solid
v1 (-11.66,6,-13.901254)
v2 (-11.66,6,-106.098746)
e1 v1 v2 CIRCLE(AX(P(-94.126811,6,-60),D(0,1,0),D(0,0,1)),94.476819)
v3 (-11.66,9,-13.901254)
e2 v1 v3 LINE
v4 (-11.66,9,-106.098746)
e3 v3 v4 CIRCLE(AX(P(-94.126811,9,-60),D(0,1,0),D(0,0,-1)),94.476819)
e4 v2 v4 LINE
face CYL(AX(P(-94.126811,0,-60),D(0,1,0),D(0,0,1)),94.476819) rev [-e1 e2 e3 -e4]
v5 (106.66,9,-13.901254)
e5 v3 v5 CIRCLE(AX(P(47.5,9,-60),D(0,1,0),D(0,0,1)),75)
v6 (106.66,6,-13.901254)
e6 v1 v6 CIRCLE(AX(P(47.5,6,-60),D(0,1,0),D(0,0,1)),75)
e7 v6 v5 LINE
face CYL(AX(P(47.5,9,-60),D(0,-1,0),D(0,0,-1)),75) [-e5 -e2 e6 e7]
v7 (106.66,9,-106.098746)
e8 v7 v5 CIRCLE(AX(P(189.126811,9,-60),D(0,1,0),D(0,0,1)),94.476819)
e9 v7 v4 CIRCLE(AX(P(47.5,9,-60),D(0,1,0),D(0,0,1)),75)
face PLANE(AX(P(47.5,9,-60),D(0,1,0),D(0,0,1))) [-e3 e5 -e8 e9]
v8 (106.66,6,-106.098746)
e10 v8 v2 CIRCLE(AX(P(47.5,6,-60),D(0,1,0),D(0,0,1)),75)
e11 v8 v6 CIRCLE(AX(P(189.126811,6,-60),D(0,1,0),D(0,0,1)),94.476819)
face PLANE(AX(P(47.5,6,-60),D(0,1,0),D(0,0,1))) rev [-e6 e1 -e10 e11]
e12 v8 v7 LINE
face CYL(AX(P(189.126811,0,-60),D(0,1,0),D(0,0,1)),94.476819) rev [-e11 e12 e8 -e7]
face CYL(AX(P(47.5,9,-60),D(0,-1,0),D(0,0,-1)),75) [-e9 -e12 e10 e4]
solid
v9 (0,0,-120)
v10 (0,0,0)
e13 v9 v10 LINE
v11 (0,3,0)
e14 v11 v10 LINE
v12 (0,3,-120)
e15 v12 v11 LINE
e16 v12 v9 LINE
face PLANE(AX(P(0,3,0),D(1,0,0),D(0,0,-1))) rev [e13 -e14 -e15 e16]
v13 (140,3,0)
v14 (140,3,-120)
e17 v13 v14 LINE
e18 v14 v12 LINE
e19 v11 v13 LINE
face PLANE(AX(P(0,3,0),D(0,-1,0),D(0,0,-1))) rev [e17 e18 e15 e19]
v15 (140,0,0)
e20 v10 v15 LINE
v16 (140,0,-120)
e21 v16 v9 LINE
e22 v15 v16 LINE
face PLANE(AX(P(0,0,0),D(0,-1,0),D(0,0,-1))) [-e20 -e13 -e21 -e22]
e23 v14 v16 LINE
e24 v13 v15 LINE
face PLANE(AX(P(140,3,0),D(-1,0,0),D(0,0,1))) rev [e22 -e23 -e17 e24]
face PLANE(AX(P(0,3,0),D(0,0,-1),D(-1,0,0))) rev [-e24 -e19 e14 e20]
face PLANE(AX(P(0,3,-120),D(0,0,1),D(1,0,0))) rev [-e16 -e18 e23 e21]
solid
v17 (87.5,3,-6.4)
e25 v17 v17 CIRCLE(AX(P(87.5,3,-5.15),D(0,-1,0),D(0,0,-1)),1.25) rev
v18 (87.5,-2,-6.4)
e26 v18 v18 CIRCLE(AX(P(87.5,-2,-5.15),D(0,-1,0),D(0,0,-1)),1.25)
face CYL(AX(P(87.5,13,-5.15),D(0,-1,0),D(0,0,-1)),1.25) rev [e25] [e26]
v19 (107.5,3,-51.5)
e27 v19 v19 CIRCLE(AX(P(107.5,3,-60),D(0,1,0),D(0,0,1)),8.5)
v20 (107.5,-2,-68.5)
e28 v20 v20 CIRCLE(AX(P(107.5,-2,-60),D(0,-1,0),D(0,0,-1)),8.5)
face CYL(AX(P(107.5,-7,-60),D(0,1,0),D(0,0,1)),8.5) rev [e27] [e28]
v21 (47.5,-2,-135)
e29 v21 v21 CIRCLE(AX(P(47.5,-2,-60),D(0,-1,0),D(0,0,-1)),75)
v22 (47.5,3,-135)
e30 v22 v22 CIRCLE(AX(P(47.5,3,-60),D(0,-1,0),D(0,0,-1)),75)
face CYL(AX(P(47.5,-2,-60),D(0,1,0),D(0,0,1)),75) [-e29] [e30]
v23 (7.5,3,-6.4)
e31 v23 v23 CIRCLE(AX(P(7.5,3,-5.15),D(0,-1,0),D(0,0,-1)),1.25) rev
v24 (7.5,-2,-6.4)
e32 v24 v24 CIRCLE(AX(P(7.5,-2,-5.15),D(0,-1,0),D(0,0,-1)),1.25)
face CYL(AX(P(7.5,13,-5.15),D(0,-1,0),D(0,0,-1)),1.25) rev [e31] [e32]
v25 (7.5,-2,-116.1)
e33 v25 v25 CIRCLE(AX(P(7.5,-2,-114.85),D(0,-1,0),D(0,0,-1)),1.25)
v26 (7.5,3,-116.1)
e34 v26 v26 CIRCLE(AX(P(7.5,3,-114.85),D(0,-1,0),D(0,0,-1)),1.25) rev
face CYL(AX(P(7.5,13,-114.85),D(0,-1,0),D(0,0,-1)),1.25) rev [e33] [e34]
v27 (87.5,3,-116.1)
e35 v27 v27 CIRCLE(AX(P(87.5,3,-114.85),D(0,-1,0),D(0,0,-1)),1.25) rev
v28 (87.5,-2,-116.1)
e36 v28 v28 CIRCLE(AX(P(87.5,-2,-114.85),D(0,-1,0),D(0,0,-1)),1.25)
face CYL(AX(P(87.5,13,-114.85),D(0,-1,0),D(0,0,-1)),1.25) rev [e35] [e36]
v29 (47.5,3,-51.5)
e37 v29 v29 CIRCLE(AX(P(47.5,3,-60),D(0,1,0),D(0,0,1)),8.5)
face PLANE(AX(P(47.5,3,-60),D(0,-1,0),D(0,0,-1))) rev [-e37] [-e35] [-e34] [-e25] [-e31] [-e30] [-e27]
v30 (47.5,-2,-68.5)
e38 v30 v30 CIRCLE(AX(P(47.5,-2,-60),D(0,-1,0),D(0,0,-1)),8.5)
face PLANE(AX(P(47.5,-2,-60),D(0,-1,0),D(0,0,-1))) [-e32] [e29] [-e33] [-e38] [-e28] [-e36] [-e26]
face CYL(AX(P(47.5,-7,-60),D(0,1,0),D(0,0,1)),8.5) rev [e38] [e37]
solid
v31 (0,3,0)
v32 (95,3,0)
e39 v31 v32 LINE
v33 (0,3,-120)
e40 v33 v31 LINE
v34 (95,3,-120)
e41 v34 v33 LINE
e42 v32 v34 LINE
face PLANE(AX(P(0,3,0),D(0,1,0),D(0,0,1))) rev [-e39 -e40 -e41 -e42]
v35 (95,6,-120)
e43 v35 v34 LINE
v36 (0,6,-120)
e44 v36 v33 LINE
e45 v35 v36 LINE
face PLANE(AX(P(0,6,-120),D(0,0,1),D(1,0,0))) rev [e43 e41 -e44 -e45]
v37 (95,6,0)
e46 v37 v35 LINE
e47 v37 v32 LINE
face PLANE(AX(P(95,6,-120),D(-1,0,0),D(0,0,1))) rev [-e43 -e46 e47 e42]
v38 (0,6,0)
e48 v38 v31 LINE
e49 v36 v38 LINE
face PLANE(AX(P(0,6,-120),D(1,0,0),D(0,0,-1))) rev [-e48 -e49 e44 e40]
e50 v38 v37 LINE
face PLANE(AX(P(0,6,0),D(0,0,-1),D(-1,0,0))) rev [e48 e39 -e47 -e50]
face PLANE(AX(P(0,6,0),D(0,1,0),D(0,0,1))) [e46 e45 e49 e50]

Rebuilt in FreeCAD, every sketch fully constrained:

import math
import FreeCAD as App
import Part
import Sketcher

V = App.Vector
Q = App.Units.Quantity


def add_polygon(sketch, points):
    """Adds a closed chain of lines whose ends are joined by coincident constraints."""
    first, n = sketch.GeometryCount, len(points)
    for a, b in zip(points, points[1:] + points[:1]):
        sketch.addGeometry(Part.LineSegment(App.Vector(*a, 0), App.Vector(*b, 0)), False)
    for i in range(n):
        sketch.addConstraint(Sketcher.Constraint("Coincident", first + i, 2, first + (i + 1) % n, 1))

doc = App.newDocument("Part")
params = doc.addObject("Spreadsheet::Sheet", "Params")
for row, (alias, value) in enumerate([
    ("sketch1_width", "140 mm"),
    ("sketch1_height", "120 mm"),
    ("pad1_length", "3 mm"),
    ("sketch2_width", "95 mm"),
    ("sketch2_height", "120 mm"),
    ("pad2_length", "3 mm"),
    ("sketch3_diameter", "150 mm"),
    ("pad3_length", "3 mm"),
    ("sketch4_radius", "75 mm"),
    ("sketch5_radius", "75 mm"),
    ("pad4_length", "3 mm"),
    ("pad5_length", "3 mm"),
    ("fillet_radius", "0.001 mm"),
    ("sketch7_height", "5 mm"),
    ("pad6_length", "3 mm"),
    ("sketch8_diameter", "2.5 mm"),
    ("pocket2_length", "10 mm"),
    ("pocket3_length", "10 mm"),
    ("sketch10_diameter", "150 mm"),
    ("sketch10_diameter2", "2.5 mm"),
    ("pad7_length", "5 mm"),
    ("pocket4_length", "150 mm"),
    ("sketch12_diameter", "17 mm"),
    ("pocket5_length", "10 mm"),
    ("sketch13_diameter", "17 mm"),
    ("pocket6_length", "10 mm"),
], start=1):
    params.set(f"A{row}", alias)
    params.set(f"B{row}", "=" + value)
    params.setAlias(f"B{row}", alias)

body = doc.addObject("PartDesign::Body", "Body")

# Sketch on XZ plane
sketch1 = body.newObject("Sketcher::SketchObject", "Sketch")
sketch1.AttachmentSupport = (doc.getObject("XZ_Plane"), [""])
sketch1.MapMode = "FlatFace"
add_polygon(sketch1, [(0, -120), (0, 0), (140, 0), (140, -120)])  # lines 0-3
sketch1.addConstraint([
    Sketcher.Constraint("Vertical", 0),
    Sketcher.Constraint("Horizontal", 1),
    Sketcher.Constraint("Vertical", 2),
    Sketcher.Constraint("Horizontal", 3),
    Sketcher.Constraint("Coincident", 0, 2, -1, 1),
    Sketcher.Constraint("DistanceX", 1, 1, 1, 2, Q("140 mm")),
    Sketcher.Constraint("DistanceY", 0, 1, 0, 2, Q("120 mm")),
])
sketch1.setExpression("Constraints[9]", "Params.sketch1_width")
sketch1.setExpression("Constraints[10]", "Params.sketch1_height")
pad1 = body.newObject("PartDesign::Pad", "Pad")
pad1.Profile = sketch1
pad1.setExpression("Length", "Params.pad1_length")
pad1.Reversed = True
body2 = doc.addObject("PartDesign::Body", "Body001")

# Sketch on XZ plane
sketch2 = body2.newObject("Sketcher::SketchObject", "Sketch001")
sketch2.AttachmentSupport = (doc.getObject("XZ_Plane001"), [""])
sketch2.MapMode = "FlatFace"
sketch2.AttachmentOffset = App.Placement(V(0, 0, -3), App.Rotation())
add_polygon(sketch2, [(0, -120), (0, 0), (95, 0), (95, -120)])  # lines 0-3
sketch2.addConstraint([
    Sketcher.Constraint("Vertical", 0),
    Sketcher.Constraint("Horizontal", 1),
    Sketcher.Constraint("Vertical", 2),
    Sketcher.Constraint("Horizontal", 3),
    Sketcher.Constraint("Coincident", 0, 2, -1, 1),
    Sketcher.Constraint("DistanceX", 1, 1, 1, 2, Q("95 mm")),
    Sketcher.Constraint("DistanceY", 0, 1, 0, 2, Q("120 mm")),
])
sketch2.setExpression("Constraints[9]", "Params.sketch2_width")
sketch2.setExpression("Constraints[10]", "Params.sketch2_height")
pad2 = body2.newObject("PartDesign::Pad", "Pad001")
pad2.Profile = sketch2
pad2.setExpression("Length", "Params.pad2_length")
pad2.Reversed = True
body3 = doc.addObject("PartDesign::Body", "Body002")

# Sketch on XZ plane
sketch3 = body3.newObject("Sketcher::SketchObject", "Sketch002")
sketch3.AttachmentSupport = (doc.getObject("XZ_Plane002"), [""])
sketch3.MapMode = "FlatFace"
sketch3.AttachmentOffset = App.Placement(V(0, 0, -6), App.Rotation())
sketch3.addGeometry(Part.Circle(V(48, -60, 0), V(0, 0, 1), 75), False)
sketch3.addConstraint([
    Sketcher.Constraint("Diameter", 0, Q("150 mm")),
    Sketcher.Constraint("DistanceY", 0, 3, -1, 1, Q("60 mm")),
    Sketcher.Constraint("DistanceX", -1, 1, 0, 3, Q("47.5 mm")),
])
sketch3.setExpression("Constraints[0]", "Params.sketch3_diameter")
pad3 = body3.newObject("PartDesign::Pad", "Pad002")
pad3.Profile = sketch3
pad3.setExpression("Length", "Params.pad3_length")
pad3.Reversed = True

# Sketch on XZ plane
sketch4 = body3.newObject("Sketcher::SketchObject", "Sketch003")
sketch4.AttachmentSupport = (doc.getObject("XZ_Plane002"), [""])
sketch4.MapMode = "FlatFace"
sketch4.AttachmentOffset = App.Placement(V(0, 0, -9), App.Rotation())
sketch4.addGeometry([
    Part.ArcOfCircle(Part.Circle(V(-94, -60, 0), V(0, 0, 1), 94), math.radians(-29), math.radians(29)),
    Part.ArcOfCircle(Part.Circle(V(48, -60, 0), V(0, 0, 1), 75), math.radians(142), math.radians(218)),
    Part.ArcOfCircle(Part.Circle(V(189, -60, 0), V(0, 0, 1), 94), math.radians(151), math.radians(209)),
    Part.ArcOfCircle(Part.Circle(V(48, -60, 0), V(0, 0, 1), 75), math.radians(-38), math.radians(38)),
], False)
sketch4.addConstraint([
    Sketcher.Constraint("Coincident", 0, 1, 1, 2),
    Sketcher.Constraint("Coincident", 1, 1, 0, 2),
    Sketcher.Constraint("Coincident", 2, 1, 3, 2),
    Sketcher.Constraint("Coincident", 3, 1, 2, 2),
    Sketcher.Constraint("Coincident", 3, 3, 1, 3),
    Sketcher.Constraint("Equal", 0, 2),
    Sketcher.Constraint("Equal", 1, 3),
    Sketcher.Constraint("Horizontal", 0, 3, 1, 3),
    Sketcher.Constraint("Horizontal", 1, 3, 2, 3),
    Sketcher.Constraint("Horizontal", 1, 1, 2, 1),
    Sketcher.Constraint("Radius", 1, Q("75 mm")),
    Sketcher.Constraint("DistanceY", 0, 3, -1, 1, Q("60 mm")),
    Sketcher.Constraint("DistanceX", -1, 1, 1, 3, Q("47.5 mm")),
    Sketcher.Constraint("DistanceX", 0, 1, -1, 1, Q("11.66 mm")),
    Sketcher.Constraint("Radius", 0, Q("94.476819 mm")),
])
sketch4.setExpression("Constraints[10]", "Params.sketch4_radius")
pocket1 = body3.newObject("PartDesign::Pocket", "Pocket")
pocket1.Profile = sketch4
pocket1.Type = "ThroughAll"
pocket1.Reversed = True
body4 = doc.addObject("PartDesign::Body", "Body003")

# Sketch on XZ plane
sketch5 = body4.newObject("Sketcher::SketchObject", "Sketch004")
sketch5.AttachmentSupport = (doc.getObject("XZ_Plane003"), [""])
sketch5.MapMode = "FlatFace"
sketch5.AttachmentOffset = App.Placement(V(0, 0, -6), App.Rotation())
sketch5.addGeometry([
    Part.ArcOfCircle(Part.Circle(V(48, -60, 0), V(0, 0, 1), 75), math.radians(38), math.radians(142)),
    Part.ArcOfCircle(Part.Circle(V(-94, -60, 0), V(0, 0, 1), 94), math.radians(-29), math.radians(29)),
    Part.ArcOfCircle(Part.Circle(V(48, -60, 0), V(0, 0, 1), 75), math.radians(-142), math.radians(-38)),
    Part.ArcOfCircle(Part.Circle(V(189, -60, 0), V(0, 0, 1), 94), math.radians(151), math.radians(209)),
], False)
sketch5.addConstraint([
    Sketcher.Constraint("Coincident", 0, 2, 1, 2),
    Sketcher.Constraint("Coincident", 1, 1, 2, 1),
    Sketcher.Constraint("Coincident", 2, 2, 3, 2),
    Sketcher.Constraint("Coincident", 3, 1, 0, 1),
    Sketcher.Constraint("Coincident", 2, 3, 0, 3),
    Sketcher.Constraint("Equal", 0, 2),
    Sketcher.Constraint("Equal", 1, 3),
    Sketcher.Constraint("Horizontal", 0, 3, 1, 3),
    Sketcher.Constraint("Horizontal", 2, 3, 3, 3),
    Sketcher.Constraint("Horizontal", 1, 1, 2, 2),
    Sketcher.Constraint("Radius", 0, Q("75 mm")),
    Sketcher.Constraint("DistanceY", 0, 3, -1, 1, Q("60 mm")),
    Sketcher.Constraint("DistanceX", -1, 1, 0, 3, Q("47.5 mm")),
    Sketcher.Constraint("DistanceX", 0, 2, -1, 1, Q("11.66 mm")),
    Sketcher.Constraint("Radius", 1, Q("94.476819 mm")),
])
sketch5.setExpression("Constraints[10]", "Params.sketch5_radius")
pad4 = body4.newObject("PartDesign::Pad", "Pad003")
pad4.Profile = sketch5
pad4.setExpression("Length", "Params.pad4_length")

# Sketch on XZ plane
sketch6 = body4.newObject("Sketcher::SketchObject", "Sketch005")
sketch6.AttachmentSupport = (doc.getObject("XZ_Plane003"), [""])
sketch6.MapMode = "FlatFace"
sketch6.AttachmentOffset = App.Placement(V(0, 0, -6), App.Rotation())
sketch6.addGeometry([
    Part.LineSegment(V(-12, -106, 0), V(-12, -14, 0)),
    Part.ArcOfCircle(Part.Circle(V(-94, -60, 0), V(0, 0, 1), 94), math.radians(-29), math.radians(29)),
    Part.LineSegment(V(107, -14, 0), V(107, -106, 0)),
    Part.ArcOfCircle(Part.Circle(V(189, -60, 0), V(0, 0, 1), 94), math.radians(151), math.radians(209)),
], False)
sketch6.addConstraint([
    Sketcher.Constraint("Coincident", 0, 1, 1, 1),
    Sketcher.Constraint("Coincident", 1, 2, 0, 2),
    Sketcher.Constraint("Coincident", 2, 1, 3, 1),
    Sketcher.Constraint("Coincident", 3, 2, 2, 2),
    Sketcher.Constraint("Vertical", 0),
    Sketcher.Constraint("Vertical", 2),
    Sketcher.Constraint("Equal", 1, 3),
    Sketcher.Constraint("Horizontal", 1, 3, 3, 3),
    Sketcher.Constraint("Horizontal", 1, 2, 2, 1),
    Sketcher.Constraint("DistanceY", 1, 3, -1, 1, Q("60 mm")),
    Sketcher.Constraint("DistanceX", 0, 1, -1, 1, Q("11.66 mm")),
    Sketcher.Constraint("DistanceX", -1, 1, 2, 1, Q("106.66 mm")),
    Sketcher.Constraint("Radius", 1, Q("94.476819 mm")),
    Sketcher.Constraint("DistanceY", 0, 1, 0, 2, Q("92.197492 mm")),
])
pad5 = body4.newObject("PartDesign::Pad", "Pad004")
pad5.Profile = sketch6
pad5.setExpression("Length", "Params.pad5_length")
doc.recompute()

fillet = body4.newObject("PartDesign::Fillet", "Fillet")
fillet.Base = (pad5, ["Edge1"])
fillet.UseAllEdges = True
fillet.setExpression("Radius", "Params.fillet_radius")

# Sketch on XZ plane
sketch7 = body4.newObject("Sketcher::SketchObject", "Sketch006")
sketch7.AttachmentSupport = (doc.getObject("XZ_Plane003"), [""])
sketch7.MapMode = "FlatFace"
sketch7.AttachmentOffset = App.Placement(V(0, 0, -6), App.Rotation())
sketch7.addGeometry([
    Part.LineSegment(V(-12, -111, 0), V(-12, -106, 0)),  # 0
    Part.ArcOfCircle(Part.Circle(V(48, -57, 0), V(0, 0, 1), 77), math.radians(-140), math.radians(-40)),  # 1
    Part.LineSegment(V(107, -106, 0), V(107, -111, 0)),  # 2
    Part.ArcOfCircle(Part.Circle(V(48, -62, 0), V(0, 0, 1), 77), math.radians(-140), math.radians(-40)),  # 3
    Part.LineSegment(V(107, -9, 0), V(107, -14, 0)),  # 4
    Part.ArcOfCircle(Part.Circle(V(48, -63, 0), V(0, 0, 1), 77), math.radians(40), math.radians(140)),  # 5
    Part.LineSegment(V(-12, -14, 0), V(-12, -9, 0)),  # 6
    Part.ArcOfCircle(Part.Circle(V(48, -58, 0), V(0, 0, 1), 77), math.radians(40), math.radians(140)),  # 7
], False)
sketch7.addConstraint([
    Sketcher.Constraint("Coincident", 0, 2, 1, 1),
    Sketcher.Constraint("Coincident", 1, 2, 2, 1),
    Sketcher.Constraint("Coincident", 2, 2, 3, 2),
    Sketcher.Constraint("Coincident", 3, 1, 0, 1),
    Sketcher.Constraint("Coincident", 4, 2, 5, 1),
    Sketcher.Constraint("Coincident", 5, 2, 6, 1),
    Sketcher.Constraint("Coincident", 6, 2, 7, 2),
    Sketcher.Constraint("Coincident", 7, 1, 4, 1),
    Sketcher.Constraint("Vertical", 0),
    Sketcher.Constraint("Vertical", 2),
    Sketcher.Constraint("Vertical", 4),
    Sketcher.Constraint("Vertical", 6),
    Sketcher.Constraint("Equal", 1, 3),
    Sketcher.Constraint("Equal", 3, 5),
    Sketcher.Constraint("Equal", 5, 7),
    Sketcher.Constraint("Horizontal", 0, 2, 1, 2),
    Sketcher.Constraint("Horizontal", 2, 2, 3, 1),
    Sketcher.Constraint("Horizontal", 4, 2, 5, 2),
    Sketcher.Constraint("Horizontal", 6, 2, 7, 1),
    Sketcher.Constraint("Vertical", 3, 3, 5, 3),
    Sketcher.Constraint("Vertical", 2, 2, 4, 2),
    Sketcher.Constraint("Equal", 2, 4),
    Sketcher.Constraint("DistanceY", 0, 1, 0, 2, Q("5 mm")),
    Sketcher.Constraint("DistanceX", -1, 1, 1, 3, Q("47.5 mm")),
    Sketcher.Constraint("Radius", 1, Q("77.028009 mm")),
    Sketcher.Constraint("DistanceY", 1, 3, -1, 1, Q("56.76662 mm")),
    Sketcher.Constraint("DistanceY", 5, 3, -1, 1, Q("63.23338 mm")),
    Sketcher.Constraint("DistanceX", 0, 2, 1, 2, Q("118.318012 mm")),
])
sketch7.setExpression("Constraints[22]", "Params.sketch7_height")
pad6 = body4.newObject("PartDesign::Pad", "Pad005")
pad6.Profile = sketch7
pad6.setExpression("Length", "Params.pad6_length")

# Sketch on XZ plane
sketch8 = body4.newObject("Sketcher::SketchObject", "Sketch007")
sketch8.AttachmentSupport = (doc.getObject("XZ_Plane003"), [""])
sketch8.MapMode = "FlatFace"
sketch8.AttachmentOffset = App.Placement(V(0, 0, -3), App.Rotation())
sketch8.addGeometry([
    Part.Circle(V(7.5, -5.2, 0), V(0, 0, 1), 1.2),
    Part.Circle(V(87.5, -5.2, 0), V(0, 0, 1), 1.2),
    Part.Circle(V(87.5, -114.8, 0), V(0, 0, 1), 1.2),
    Part.Circle(V(7.5, -114.8, 0), V(0, 0, 1), 1.2),
], False)
sketch8.addConstraint([
    Sketcher.Constraint("Equal", 0, 1),
    Sketcher.Constraint("Equal", 1, 2),
    Sketcher.Constraint("Equal", 2, 3),
    Sketcher.Constraint("Horizontal", 0, 3, 1, 3),
    Sketcher.Constraint("Horizontal", 2, 3, 3, 3),
    Sketcher.Constraint("Vertical", 1, 3, 2, 3),
    Sketcher.Constraint("Vertical", 0, 3, 3, 3),
    Sketcher.Constraint("Diameter", 0, Q("2.5 mm")),
    Sketcher.Constraint("DistanceX", 0, 3, 1, 3, Q("80 mm")),
    Sketcher.Constraint("DistanceX", -1, 1, 0, 3, Q("7.5 mm")),
    Sketcher.Constraint("DistanceY", 2, 3, 1, 3, Q("109.7 mm")),
    Sketcher.Constraint("DistanceY", 0, 3, -1, 1, Q("5.15 mm")),
])
sketch8.setExpression("Constraints[7]", "Params.sketch8_diameter")
pocket2 = body4.newObject("PartDesign::Pocket", "Pocket001")
pocket2.Profile = sketch8
pocket2.setExpression("Length", "Params.pocket2_length")

# Sketch on XZ plane
sketch9 = body4.newObject("Sketcher::SketchObject", "Sketch008")
sketch9.AttachmentSupport = (doc.getObject("XZ_Plane003"), [""])
sketch9.MapMode = "FlatFace"
sketch9.AttachmentOffset = App.Placement(V(0, 0, -3), App.Rotation())
add_polygon(sketch9, [(120, 37), (-29, 37), (-29, -159), (120, -159)])  # lines 0-3
add_polygon(sketch9, [(-7, 25), (102, 25), (102, -144), (-7, -144)])  # lines 4-7
sketch9.addConstraint([
    Sketcher.Constraint("Horizontal", 0),
    Sketcher.Constraint("Vertical", 1),
    Sketcher.Constraint("Horizontal", 2),
    Sketcher.Constraint("Vertical", 3),
    Sketcher.Constraint("Horizontal", 4),
    Sketcher.Constraint("Vertical", 5),
    Sketcher.Constraint("Horizontal", 6),
    Sketcher.Constraint("Vertical", 7),
    Sketcher.Constraint("DistanceX", 4, 1, 4, 2, Q("108.318 mm")),
    Sketcher.Constraint("DistanceX", -1, 1, 4, 2, Q("101.659 mm")),
    Sketcher.Constraint("DistanceY", 5, 2, 5, 1, Q("168.545879 mm")),
    Sketcher.Constraint("DistanceY", 2, 2, 4, 2, Q("183.304201 mm")),
    Sketcher.Constraint("DistanceX", 0, 2, 0, 1, Q("149.549773 mm")),
    Sketcher.Constraint("DistanceY", 1, 2, 1, 1, Q("195.651983 mm")),
    Sketcher.Constraint("DistanceX", -1, 1, 2, 2, Q("120.372278 mm")),
    Sketcher.Constraint("DistanceY", -1, 1, 0, 2, Q("37.050138 mm")),
])
pocket3 = body4.newObject("PartDesign::Pocket", "Pocket002")
pocket3.Profile = sketch9
pocket3.setExpression("Length", "Params.pocket3_length")

# Sketch on XZ plane
sketch10 = body4.newObject("Sketcher::SketchObject", "Sketch009")
sketch10.AttachmentSupport = (doc.getObject("XZ_Plane003"), [""])
sketch10.MapMode = "FlatFace"
sketch10.AttachmentOffset = App.Placement(V(0, 0, -3), App.Rotation())
sketch10.addGeometry([
    Part.Circle(V(47.5, -60, 0), V(0, 0, 1), 75),  # 0
    Part.Circle(V(87.5, -114.8, 0), V(0, 0, 1), 1.2),  # 1
    Part.Circle(V(7.5, -114.8, 0), V(0, 0, 1), 1.2),  # 2
    Part.Circle(V(87.5, -5.2, 0), V(0, 0, 1), 1.2),  # 3
    Part.Circle(V(7.5, -5.2, 0), V(0, 0, 1), 1.2),  # 4
], False)
sketch10.addConstraint([
    Sketcher.Constraint("Equal", 1, 2),
    Sketcher.Constraint("Equal", 2, 3),
    Sketcher.Constraint("Equal", 3, 4),
    Sketcher.Constraint("Horizontal", 1, 3, 2, 3),
    Sketcher.Constraint("Horizontal", 3, 3, 4, 3),
    Sketcher.Constraint("Vertical", 1, 3, 3, 3),
    Sketcher.Constraint("Vertical", 2, 3, 4, 3),
    Sketcher.Constraint("Diameter", 0, Q("150 mm")),
    Sketcher.Constraint("Diameter", 1, Q("2.5 mm")),
    Sketcher.Constraint("DistanceY", 0, 3, -1, 1, Q("60 mm")),
    Sketcher.Constraint("DistanceX", 0, 3, 1, 3, Q("40 mm")),
    Sketcher.Constraint("DistanceX", 2, 3, 0, 3, Q("40 mm")),
    Sketcher.Constraint("DistanceX", -1, 1, 0, 3, Q("47.5 mm")),
    Sketcher.Constraint("DistanceY", 1, 3, 3, 3, Q("109.7 mm")),
    Sketcher.Constraint("DistanceY", 1, 3, -1, 1, Q("114.85 mm")),
])
sketch10.setExpression("Constraints[7]", "Params.sketch10_diameter")
sketch10.setExpression("Constraints[8]", "Params.sketch10_diameter2")
pad7 = body4.newObject("PartDesign::Pad", "Pad006")
pad7.Profile = sketch10
pad7.setExpression("Length", "Params.pad7_length")

# Sketch on YZ plane
sketch11 = body4.newObject("Sketcher::SketchObject", "Sketch010")
sketch11.AttachmentSupport = (doc.getObject("YZ_Plane003"), [""])
sketch11.MapMode = "FlatFace"
sketch11.AttachmentOffset = App.Placement(V(0, 0, 101.659), App.Rotation())
add_polygon(sketch11, [(3, 23), (3, -148), (8, -148), (8, 23)])  # lines 0-3
sketch11.addConstraint([
    Sketcher.Constraint("Vertical", 0),
    Sketcher.Constraint("Horizontal", 1),
    Sketcher.Constraint("Vertical", 2),
    Sketcher.Constraint("Horizontal", 3),
    Sketcher.Constraint("DistanceX", -1, 1, 0, 2, Q("3 mm")),
    Sketcher.Constraint("DistanceY", 0, 2, 0, 1, Q("170.23682 mm")),
    Sketcher.Constraint("DistanceX", 1, 1, 1, 2, Q("5.214036 mm")),
    Sketcher.Constraint("DistanceY", 0, 2, -1, 1, Q("147.503035 mm")),
])
pocket4 = body4.newObject("PartDesign::Pocket", "Pocket003")
pocket4.Profile = sketch11
pocket4.setExpression("Length", "Params.pocket4_length")

# Sketch on XZ plane
sketch12 = body4.newObject("Sketcher::SketchObject", "Sketch011")
sketch12.AttachmentSupport = (doc.getObject("XZ_Plane003"), [""])
sketch12.MapMode = "FlatFace"
sketch12.AttachmentOffset = App.Placement(V(0, 0, -3), App.Rotation())
sketch12.addGeometry(Part.Circle(V(48, -60, 0), V(0, 0, 1), 8), False)
sketch12.addConstraint([
    Sketcher.Constraint("Diameter", 0, Q("17 mm")),
    Sketcher.Constraint("DistanceY", 0, 3, -1, 1, Q("60 mm")),
    Sketcher.Constraint("DistanceX", -1, 1, 0, 3, Q("47.5 mm")),
])
sketch12.setExpression("Constraints[0]", "Params.sketch12_diameter")
pocket5 = body4.newObject("PartDesign::Pocket", "Pocket004")
pocket5.Profile = sketch12
pocket5.setExpression("Length", "Params.pocket5_length")
pocket5.Reversed = True

# Sketch on XZ plane
sketch13 = body4.newObject("Sketcher::SketchObject", "Sketch012")
sketch13.AttachmentSupport = (doc.getObject("XZ_Plane003"), [""])
sketch13.MapMode = "FlatFace"
sketch13.AttachmentOffset = App.Placement(V(0, 0, -3), App.Rotation())
sketch13.addGeometry(Part.Circle(V(108, -60, 0), V(0, 0, 1), 8), False)
sketch13.addConstraint([
    Sketcher.Constraint("Diameter", 0, Q("17 mm")),
    Sketcher.Constraint("DistanceY", 0, 3, -1, 1, Q("60 mm")),
    Sketcher.Constraint("DistanceX", -1, 1, 0, 3, Q("107.5 mm")),
])
sketch13.setExpression("Constraints[0]", "Params.sketch13_diameter")
pocket6 = body4.newObject("PartDesign::Pocket", "Pocket005")
pocket6.Profile = sketch13
pocket6.setExpression("Length", "Params.pocket6_length")
pocket6.Reversed = True

doc.recompute()
